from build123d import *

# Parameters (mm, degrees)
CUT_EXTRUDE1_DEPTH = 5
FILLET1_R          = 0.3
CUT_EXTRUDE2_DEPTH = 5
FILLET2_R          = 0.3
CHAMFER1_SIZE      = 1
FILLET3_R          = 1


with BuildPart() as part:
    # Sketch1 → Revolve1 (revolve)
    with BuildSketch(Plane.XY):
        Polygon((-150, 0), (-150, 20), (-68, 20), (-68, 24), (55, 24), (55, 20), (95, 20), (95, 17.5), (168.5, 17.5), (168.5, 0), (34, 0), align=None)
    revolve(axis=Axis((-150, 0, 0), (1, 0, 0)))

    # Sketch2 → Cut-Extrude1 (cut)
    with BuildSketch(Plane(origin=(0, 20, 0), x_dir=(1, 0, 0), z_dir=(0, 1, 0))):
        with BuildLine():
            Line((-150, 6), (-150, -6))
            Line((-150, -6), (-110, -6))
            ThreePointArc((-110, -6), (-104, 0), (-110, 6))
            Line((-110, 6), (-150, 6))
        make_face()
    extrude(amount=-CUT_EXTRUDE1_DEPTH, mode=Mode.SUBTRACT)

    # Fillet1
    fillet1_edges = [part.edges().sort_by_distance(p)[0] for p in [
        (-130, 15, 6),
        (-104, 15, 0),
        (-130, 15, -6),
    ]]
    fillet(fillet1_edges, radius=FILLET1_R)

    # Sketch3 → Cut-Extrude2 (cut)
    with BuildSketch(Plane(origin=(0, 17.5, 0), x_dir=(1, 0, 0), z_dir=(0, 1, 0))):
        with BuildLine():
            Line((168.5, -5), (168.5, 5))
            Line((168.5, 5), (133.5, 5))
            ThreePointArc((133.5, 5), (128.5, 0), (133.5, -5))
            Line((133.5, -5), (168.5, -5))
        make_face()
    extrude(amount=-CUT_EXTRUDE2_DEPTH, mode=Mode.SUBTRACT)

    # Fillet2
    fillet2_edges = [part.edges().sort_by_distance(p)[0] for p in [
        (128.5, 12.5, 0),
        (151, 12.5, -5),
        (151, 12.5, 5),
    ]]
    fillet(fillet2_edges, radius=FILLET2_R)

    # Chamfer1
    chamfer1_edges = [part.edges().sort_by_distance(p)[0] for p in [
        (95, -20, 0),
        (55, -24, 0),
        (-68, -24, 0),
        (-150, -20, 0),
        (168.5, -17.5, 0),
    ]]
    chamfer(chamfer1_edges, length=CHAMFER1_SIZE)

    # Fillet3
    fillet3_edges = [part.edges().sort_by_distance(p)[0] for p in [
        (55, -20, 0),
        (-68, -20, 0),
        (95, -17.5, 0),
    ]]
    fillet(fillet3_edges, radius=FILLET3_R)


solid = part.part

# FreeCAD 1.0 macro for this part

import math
import FreeCAD as App
import Part
import Sketcher


def edges_at(feature, points):
    """Names of the edges that pass closest to the given points."""
    edges = feature.Shape.Edges
    near = lambda p: min(range(len(edges)), key=lambda i: edges[i].distToShape(Part.Vertex(*p))[0])
    return sorted({f"Edge{near(p) + 1}" for p in points})


def add_polygon(sketch, points):
    """Adds a closed chain of lines whose ends are joined by coincident constraints."""
    first, n = sketch.GeometryCount, len(points)
    for a, b in zip(points, points[1:] + points[:1]):
        sketch.addGeometry(Part.LineSegment(App.Vector(*a, 0), App.Vector(*b, 0)), False)
    for i in range(n):
        sketch.addConstraint(Sketcher.Constraint("Coincident", first + i, 2, first + (i + 1) % n, 1))

doc = App.newDocument("Part")
body = doc.addObject("PartDesign::Body", "Body")

# Sketch on XY plane
sketch1 = body.newObject("Sketcher::SketchObject", "Sketch")
sketch1.AttachmentSupport = (doc.getObject("XY_Plane"), [""])
sketch1.MapMode = "FlatFace"
add_polygon(sketch1, [(-150, 20), (-150, 0), (168.5, 0), (168.5, 17.5), (95, 17.5), (95, 20), (55, 20), (55, 24), (-68, 24), (-68, 20)])  # lines 0-9
sketch1.addConstraint([
    Sketcher.Constraint("Vertical", 0),
    Sketcher.Constraint("Horizontal", 1),
    Sketcher.Constraint("Vertical", 2),
    Sketcher.Constraint("Horizontal", 3),
    Sketcher.Constraint("Vertical", 4),
    Sketcher.Constraint("Horizontal", 5),
    Sketcher.Constraint("Vertical", 6),
    Sketcher.Constraint("Horizontal", 7),
    Sketcher.Constraint("Vertical", 8),
    Sketcher.Constraint("Horizontal", 9),
    Sketcher.Constraint("PointOnObject", 0, 2, -1),
    Sketcher.Constraint("Horizontal", 5, 2, 8, 2),
    Sketcher.Constraint("DistanceX", 5, 2, 5, 1, 40.0),
    Sketcher.Constraint("DistanceX", 7, 2, 7, 1, 123.0),
    Sketcher.Constraint("DistanceX", 9, 2, 9, 1, 82.0),
    Sketcher.Constraint("DistanceY", 0, 2, 0, 1, 20.0),
    Sketcher.Constraint("DistanceY", 6, 1, 6, 2, 4.0),
    Sketcher.Constraint("DistanceX", 1, 1, 1, 2, 318.5),
    Sketcher.Constraint("DistanceY", 2, 1, 2, 2, 17.5),
    Sketcher.Constraint("DistanceX", 0, 2, -1, 1, 150.0),
])
revolution = body.newObject("PartDesign::Revolution", "Revolution")
revolution.Profile = sketch1
revolution.ReferenceAxis = (sketch1, ["H_Axis"])
revolution.Angle = 360

# Sketch on XZ plane
sketch2 = body.newObject("Sketcher::SketchObject", "Sketch001")
sketch2.AttachmentSupport = (doc.getObject("XZ_Plane"), [""])
sketch2.MapMode = "FlatFace"
sketch2.AttachmentOffset = App.Placement(App.Vector(0, 0, -20), App.Rotation())
sketch2.addGeometry([
    Part.LineSegment(App.Vector(-150, -6, 0), App.Vector(-150, 6, 0)),
    Part.LineSegment(App.Vector(-150, 6, 0), App.Vector(-110, 6, 0)),
    Part.ArcOfCircle(Part.Circle(App.Vector(-110, 0, 0), App.Vector(0, 0, 1), 6), math.radians(-90), math.radians(90)),
    Part.LineSegment(App.Vector(-110, -6, 0), App.Vector(-150, -6, 0)),
], False)
sketch2.addConstraint([
    Sketcher.Constraint("Coincident", 0, 2, 1, 1),
    Sketcher.Constraint("Tangent", 1, 2, 2, 2),
    Sketcher.Constraint("Tangent", 2, 1, 3, 1),
    Sketcher.Constraint("Coincident", 3, 2, 0, 1),
    Sketcher.Constraint("Vertical", 0),
    Sketcher.Constraint("Horizontal", 1),
    Sketcher.Constraint("Horizontal", 3),
    Sketcher.Constraint("PointOnObject", 2, 3, -1),
    Sketcher.Constraint("Radius", 2, 6.0),
    Sketcher.Constraint("DistanceX", 1, 1, 1, 2, 40.0),
    Sketcher.Constraint("DistanceX", 2, 3, -1, 1, 110.0),
])
pocket1 = body.newObject("PartDesign::Pocket", "Pocket")
pocket1.Profile = sketch2
pocket1.Length = 5
pocket1.Reversed = True
doc.recompute()

fillet = body.newObject("PartDesign::Fillet", "Fillet")
fillet.Base = (pocket1, edges_at(pocket1, [(-130, 15, 6), (-104, 15, 0), (-130, 15, -6)]))
fillet.Radius = 0.3

# Sketch on XZ plane
sketch3 = body.newObject("Sketcher::SketchObject", "Sketch002")
sketch3.AttachmentSupport = (doc.getObject("XZ_Plane"), [""])
sketch3.MapMode = "FlatFace"
sketch3.AttachmentOffset = App.Placement(App.Vector(0, 0, -17.5), App.Rotation())
sketch3.addGeometry([
    Part.LineSegment(App.Vector(168, 5, 0), App.Vector(168, -5, 0)),
    Part.LineSegment(App.Vector(168, -5, 0), App.Vector(134, -5, 0)),
    Part.ArcOfCircle(Part.Circle(App.Vector(134, 0, 0), App.Vector(0, 0, 1), 5), math.radians(90), math.radians(270)),
    Part.LineSegment(App.Vector(134, 5, 0), App.Vector(168, 5, 0)),
], False)
sketch3.addConstraint([
    Sketcher.Constraint("Coincident", 0, 2, 1, 1),
    Sketcher.Constraint("Tangent", 1, 2, 2, 2),
    Sketcher.Constraint("Tangent", 2, 1, 3, 1),
    Sketcher.Constraint("Coincident", 3, 2, 0, 1),
    Sketcher.Constraint("Vertical", 0),
    Sketcher.Constraint("Horizontal", 1),
    Sketcher.Constraint("Horizontal", 3),
    Sketcher.Constraint("PointOnObject", 2, 3, -1),
    Sketcher.Constraint("Radius", 2, 5.0),
    Sketcher.Constraint("DistanceX", 1, 2, 1, 1, 35.0),
    Sketcher.Constraint("DistanceX", -1, 1, 2, 3, 133.5),
])
pocket2 = body.newObject("PartDesign::Pocket", "Pocket001")
pocket2.Profile = sketch3
pocket2.Length = 5
pocket2.Reversed = True
doc.recompute()

fillet2 = body.newObject("PartDesign::Fillet", "Fillet001")
fillet2.Base = (pocket2, edges_at(pocket2, [(128.5, 12.5, 0), (151, 12.5, -5), (151, 12.5, 5)]))
fillet2.Radius = 0.3
doc.recompute()

chamfer = body.newObject("PartDesign::Chamfer", "Chamfer")
chamfer.Base = (fillet2, edges_at(fillet2, [
    (95, -20, 0),
    (55, -24, 0),
    (-68, -24, 0),
    (-150, -20, 0),
    (168.5, -17.5, 0),
]))
chamfer.Size = 1
doc.recompute()

fillet3 = body.newObject("PartDesign::Fillet", "Fillet002")
fillet3.Base = (chamfer, edges_at(chamfer, [(55, -20, 0), (-68, -20, 0), (95, -17.5, 0)]))
fillet3.Radius = 1

doc.recompute()
